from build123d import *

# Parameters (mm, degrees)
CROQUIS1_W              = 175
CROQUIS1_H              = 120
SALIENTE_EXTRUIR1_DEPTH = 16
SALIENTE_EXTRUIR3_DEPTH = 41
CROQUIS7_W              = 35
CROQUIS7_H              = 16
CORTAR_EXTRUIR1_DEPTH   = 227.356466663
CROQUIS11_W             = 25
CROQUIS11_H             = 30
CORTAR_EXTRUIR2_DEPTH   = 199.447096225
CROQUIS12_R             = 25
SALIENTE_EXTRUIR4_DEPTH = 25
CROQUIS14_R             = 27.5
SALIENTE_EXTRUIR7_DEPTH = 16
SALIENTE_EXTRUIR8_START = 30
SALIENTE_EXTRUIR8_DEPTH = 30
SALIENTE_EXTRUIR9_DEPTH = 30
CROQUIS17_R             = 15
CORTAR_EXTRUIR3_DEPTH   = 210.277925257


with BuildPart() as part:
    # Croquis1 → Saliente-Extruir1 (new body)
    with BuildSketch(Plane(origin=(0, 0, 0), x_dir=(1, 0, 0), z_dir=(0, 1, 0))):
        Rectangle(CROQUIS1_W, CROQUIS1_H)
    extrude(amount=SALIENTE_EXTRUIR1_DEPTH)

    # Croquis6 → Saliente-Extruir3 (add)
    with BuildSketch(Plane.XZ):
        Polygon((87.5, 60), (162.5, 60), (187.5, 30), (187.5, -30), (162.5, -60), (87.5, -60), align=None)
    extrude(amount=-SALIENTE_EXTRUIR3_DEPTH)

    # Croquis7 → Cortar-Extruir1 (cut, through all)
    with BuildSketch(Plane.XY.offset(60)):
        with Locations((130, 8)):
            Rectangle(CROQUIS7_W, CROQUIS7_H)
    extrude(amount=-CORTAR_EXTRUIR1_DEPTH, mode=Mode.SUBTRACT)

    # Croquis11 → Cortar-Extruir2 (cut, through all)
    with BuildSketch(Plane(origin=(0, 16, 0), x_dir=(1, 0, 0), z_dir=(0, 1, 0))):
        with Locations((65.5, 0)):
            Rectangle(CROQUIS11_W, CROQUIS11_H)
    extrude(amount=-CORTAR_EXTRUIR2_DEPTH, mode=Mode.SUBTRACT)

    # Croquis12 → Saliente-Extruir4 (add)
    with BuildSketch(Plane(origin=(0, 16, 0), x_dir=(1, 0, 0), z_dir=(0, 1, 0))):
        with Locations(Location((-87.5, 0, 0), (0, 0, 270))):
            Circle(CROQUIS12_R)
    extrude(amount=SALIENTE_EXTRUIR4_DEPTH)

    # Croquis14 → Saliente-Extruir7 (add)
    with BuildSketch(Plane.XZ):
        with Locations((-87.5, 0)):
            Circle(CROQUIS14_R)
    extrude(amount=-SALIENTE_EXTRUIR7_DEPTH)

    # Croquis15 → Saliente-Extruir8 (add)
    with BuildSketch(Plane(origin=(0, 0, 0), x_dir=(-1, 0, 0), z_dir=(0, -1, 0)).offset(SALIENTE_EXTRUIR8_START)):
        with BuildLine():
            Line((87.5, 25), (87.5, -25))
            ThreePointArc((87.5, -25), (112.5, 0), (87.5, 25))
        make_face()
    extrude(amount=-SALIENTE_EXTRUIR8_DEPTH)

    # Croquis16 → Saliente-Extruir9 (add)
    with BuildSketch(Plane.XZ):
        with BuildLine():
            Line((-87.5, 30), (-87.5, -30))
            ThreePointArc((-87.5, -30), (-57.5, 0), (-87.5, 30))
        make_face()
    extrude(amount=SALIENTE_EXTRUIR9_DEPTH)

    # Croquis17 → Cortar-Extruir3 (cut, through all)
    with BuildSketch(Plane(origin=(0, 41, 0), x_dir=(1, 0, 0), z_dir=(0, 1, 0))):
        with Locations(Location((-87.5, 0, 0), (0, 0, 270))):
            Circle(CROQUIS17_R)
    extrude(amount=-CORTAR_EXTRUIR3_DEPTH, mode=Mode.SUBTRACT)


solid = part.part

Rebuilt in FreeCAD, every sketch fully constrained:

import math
import FreeCAD as App
import Part
import Sketcher
Q = App.Units.Quantity

doc = App.newDocument("Part")
params = doc.addObject("Spreadsheet::Sheet", "Params")
for row, (alias, value) in enumerate([
    ("sketch1_width", "175 mm"),
    ("sketch1_height", "120 mm"),
    ("pad1_length", "16 mm"),
    ("sketch2_width", "75 mm"),
    ("sketch2_height", "120 mm"),
    ("sketch2_height2", "60 mm"),
    ("pad2_length", "41 mm"),
    ("sketch3_width", "35 mm"),
    ("sketch3_height", "16 mm"),
    ("sketch4_width", "25 mm"),
    ("sketch4_height", "30 mm"),
    ("sketch5_diameter", "50 mm"),
    ("pad3_length", "25 mm"),
    ("sketch6_diameter", "55 mm"),
    ("pad4_length", "16 mm"),
    ("sketch7_radius", "25 mm"),
    ("pad5_length", "30 mm"),
    ("sketch8_radius", "30 mm"),
    ("pad6_length", "30 mm"),
    ("sketch9_diameter", "30 mm"),
], start=1):
    params.set(f"A{row}", alias)
    params.set(f"B{row}", "=" + value)
    params.setAlias(f"B{row}", alias)

body = doc.addObject("PartDesign::Body", "Body")

# Sketch on XZ plane
sketch1 = body.newObject("Sketcher::SketchObject", "Sketch")
sketch1.AttachmentSupport = (doc.getObject("XZ_Plane"), [""])
sketch1.MapMode = "FlatFace"
sketch1.addGeometry([
    Part.LineSegment(App.Vector(-88, -60, 0), App.Vector(-88, 60, 0)),
    Part.LineSegment(App.Vector(-88, 60, 0), App.Vector(88, 60, 0)),
    Part.LineSegment(App.Vector(88, 60, 0), App.Vector(88, -60, 0)),
    Part.LineSegment(App.Vector(88, -60, 0), App.Vector(-88, -60, 0)),
], False)
sketch1.addConstraint([
    Sketcher.Constraint("Coincident", 0, 2, 1, 1),
    Sketcher.Constraint("Coincident", 1, 2, 2, 1),
    Sketcher.Constraint("Coincident", 2, 2, 3, 1),
    Sketcher.Constraint("Coincident", 3, 2, 0, 1),
    Sketcher.Constraint("Vertical", 0),
    Sketcher.Constraint("Horizontal", 1),
    Sketcher.Constraint("Vertical", 2),
    Sketcher.Constraint("Horizontal", 3),
    Sketcher.Constraint("Symmetric", 0, 2, 2, 2, -1, 1),
    Sketcher.Constraint("DistanceX", 1, 1, 1, 2, Q("175 mm")),
    Sketcher.Constraint("DistanceY", 0, 1, 0, 2, Q("120 mm")),
])
sketch1.setExpression("Constraints[9]", "Params.sketch1_width")
sketch1.setExpression("Constraints[10]", "Params.sketch1_height")
pad1 = body.newObject("PartDesign::Pad", "Pad")
pad1.Profile = sketch1
pad1.setExpression("Length", "Params.pad1_length")
pad1.Reversed = True

# Sketch on XZ plane
sketch2 = body.newObject("Sketcher::SketchObject", "Sketch001")
sketch2.AttachmentSupport = (doc.getObject("XZ_Plane"), [""])
sketch2.MapMode = "FlatFace"
sketch2.addGeometry([
    Part.LineSegment(App.Vector(162, 60, 0), App.Vector(88, 60, 0)),  # 0
    Part.LineSegment(App.Vector(88, 60, 0), App.Vector(88, -60, 0)),  # 1
    Part.LineSegment(App.Vector(88, -60, 0), App.Vector(162, -60, 0)),  # 2
    Part.LineSegment(App.Vector(162, -60, 0), App.Vector(188, -30, 0)),  # 3
    Part.LineSegment(App.Vector(188, -30, 0), App.Vector(188, 30, 0)),  # 4
    Part.LineSegment(App.Vector(188, 30, 0), App.Vector(162, 60, 0)),  # 5
], False)
sketch2.addConstraint([
    Sketcher.Constraint("Coincident", 0, 2, 1, 1),
    Sketcher.Constraint("Coincident", 1, 2, 2, 1),
    Sketcher.Constraint("Coincident", 2, 2, 3, 1),
    Sketcher.Constraint("Coincident", 3, 2, 4, 1),
    Sketcher.Constraint("Coincident", 4, 2, 5, 1),
    Sketcher.Constraint("Coincident", 5, 2, 0, 1),
    Sketcher.Constraint("Horizontal", 0),
    Sketcher.Constraint("Vertical", 1),
    Sketcher.Constraint("Horizontal", 2),
    Sketcher.Constraint("Vertical", 4),
    Sketcher.Constraint("Symmetric", 2, 2, 5, 2, -1),
    Sketcher.Constraint("Equal", 3, 5),
    Sketcher.Constraint("DistanceX", 0, 2, 0, 1, Q("75 mm")),
    Sketcher.Constraint("DistanceY", 1, 2, 1, 1, Q("120 mm")),
    Sketcher.Constraint("DistanceY", 4, 1, 4, 2, Q("60 mm")),
    Sketcher.Constraint("DistanceX", 2, 2, 3, 2, Q("25 mm")),
    Sketcher.Constraint("DistanceX", -1, 1, 0, 2, Q("87.5 mm")),
])
sketch2.setExpression("Constraints[12]", "Params.sketch2_width")
sketch2.setExpression("Constraints[13]", "Params.sketch2_height")
sketch2.setExpression("Constraints[14]", "Params.sketch2_height2")
pad2 = body.newObject("PartDesign::Pad", "Pad001")
pad2.Profile = sketch2
pad2.setExpression("Length", "Params.pad2_length")
pad2.Reversed = True

# Sketch on XY plane
sketch3 = body.newObject("Sketcher::SketchObject", "Sketch002")
sketch3.AttachmentSupport = (doc.getObject("XY_Plane"), [""])
sketch3.MapMode = "FlatFace"
sketch3.AttachmentOffset = App.Placement(App.Vector(0, 0, 60), App.Rotation())
sketch3.addGeometry([
    Part.LineSegment(App.Vector(112, 16, 0), App.Vector(112, 0, 0)),
    Part.LineSegment(App.Vector(112, 0, 0), App.Vector(148, 0, 0)),
    Part.LineSegment(App.Vector(148, 0, 0), App.Vector(148, 16, 0)),
    Part.LineSegment(App.Vector(148, 16, 0), App.Vector(112, 16, 0)),
], False)
sketch3.addConstraint([
    Sketcher.Constraint("Coincident", 0, 2, 1, 1),
    Sketcher.Constraint("Coincident", 1, 2, 2, 1),
    Sketcher.Constraint("Coincident", 2, 2, 3, 1),
    Sketcher.Constraint("Coincident", 3, 2, 0, 1),
    Sketcher.Constraint("Vertical", 0),
    Sketcher.Constraint("Horizontal", 1),
    Sketcher.Constraint("Vertical", 2),
    Sketcher.Constraint("Horizontal", 3),
    Sketcher.Constraint("PointOnObject", 0, 2, -1),
    Sketcher.Constraint("DistanceX", 1, 1, 1, 2, Q("35 mm")),
    Sketcher.Constraint("DistanceY", 0, 2, 0, 1, Q("16 mm")),
    Sketcher.Constraint("DistanceX", -1, 1, 0, 2, Q("112.5 mm")),
])
sketch3.setExpression("Constraints[9]", "Params.sketch3_width")
sketch3.setExpression("Constraints[10]", "Params.sketch3_height")
pocket1 = body.newObject("PartDesign::Pocket", "Pocket")
pocket1.Profile = sketch3
pocket1.Type = "ThroughAll"

# Sketch on XZ plane
sketch4 = body.newObject("Sketcher::SketchObject", "Sketch003")
sketch4.AttachmentSupport = (doc.getObject("XZ_Plane"), [""])
sketch4.MapMode = "FlatFace"
sketch4.AttachmentOffset = App.Placement(App.Vector(0, 0, -16), App.Rotation())
sketch4.addGeometry([
    Part.LineSegment(App.Vector(53, -15, 0), App.Vector(53, 15, 0)),
    Part.LineSegment(App.Vector(53, 15, 0), App.Vector(78, 15, 0)),
    Part.LineSegment(App.Vector(78, 15, 0), App.Vector(78, -15, 0)),
    Part.LineSegment(App.Vector(78, -15, 0), App.Vector(53, -15, 0)),
], False)
sketch4.addConstraint([
    Sketcher.Constraint("Coincident", 0, 2, 1, 1),
    Sketcher.Constraint("Coincident", 1, 2, 2, 1),
    Sketcher.Constraint("Coincident", 2, 2, 3, 1),
    Sketcher.Constraint("Coincident", 3, 2, 0, 1),
    Sketcher.Constraint("Vertical", 0),
    Sketcher.Constraint("Horizontal", 1),
    Sketcher.Constraint("Vertical", 2),
    Sketcher.Constraint("Horizontal", 3),
    Sketcher.Constraint("DistanceX", 1, 1, 1, 2, Q("25 mm")),
    Sketcher.Constraint("DistanceY", 0, 1, 0, 2, Q("30 mm")),
    Sketcher.Constraint("DistanceX", -1, 1, 0, 2, Q("53 mm")),
    Sketcher.Constraint("DistanceY", -1, 1, 0, 2, Q("15 mm")),
])
sketch4.setExpression("Constraints[8]", "Params.sketch4_width")
sketch4.setExpression("Constraints[9]", "Params.sketch4_height")
pocket2 = body.newObject("PartDesign::Pocket", "Pocket001")
pocket2.Profile = sketch4
pocket2.Type = "ThroughAll"
pocket2.Reversed = True

# Sketch on XZ plane
sketch5 = body.newObject("Sketcher::SketchObject", "Sketch004")
sketch5.AttachmentSupport = (doc.getObject("XZ_Plane"), [""])
sketch5.MapMode = "FlatFace"
sketch5.AttachmentOffset = App.Placement(App.Vector(0, 0, -16), App.Rotation())
sketch5.addGeometry(Part.Circle(App.Vector(-88, 0, 0), App.Vector(0, 0, 1), 25), False)
sketch5.addConstraint([
    Sketcher.Constraint("PointOnObject", 0, 3, -1),
    Sketcher.Constraint("Diameter", 0, Q("50 mm")),
    Sketcher.Constraint("DistanceX", 0, 3, -1, 1, Q("87.5 mm")),
])
sketch5.setExpression("Constraints[1]", "Params.sketch5_diameter")
pad3 = body.newObject("PartDesign::Pad", "Pad002")
pad3.Profile = sketch5
pad3.setExpression("Length", "Params.pad3_length")
pad3.Reversed = True

# Sketch on XZ plane
sketch6 = body.newObject("Sketcher::SketchObject", "Sketch005")
sketch6.AttachmentSupport = (doc.getObject("XZ_Plane"), [""])
sketch6.MapMode = "FlatFace"
sketch6.addGeometry(Part.Circle(App.Vector(-88, 0, 0), App.Vector(0, 0, 1), 28), False)
sketch6.addConstraint([
    Sketcher.Constraint("PointOnObject", 0, 3, -1),
    Sketcher.Constraint("Diameter", 0, Q("55 mm")),
    Sketcher.Constraint("DistanceX", 0, 3, -1, 1, Q("87.5 mm")),
])
sketch6.setExpression("Constraints[1]", "Params.sketch6_diameter")
pad4 = body.newObject("PartDesign::Pad", "Pad003")
pad4.Profile = sketch6
pad4.setExpression("Length", "Params.pad4_length")
pad4.Reversed = True

# Sketch on XZ plane
sketch7 = body.newObject("Sketcher::SketchObject", "Sketch006")
sketch7.AttachmentSupport = (doc.getObject("XZ_Plane"), [""])
sketch7.MapMode = "FlatFace"
sketch7.AttachmentOffset = App.Placement(App.Vector(0, 0, 30), App.Rotation())
sketch7.addGeometry([
    Part.LineSegment(App.Vector(-88, -25, 0), App.Vector(-88, 25, 0)),
    Part.ArcOfCircle(Part.Circle(App.Vector(-88, 0, 0), App.Vector(0, 0, 1), 25), math.radians(90), math.radians(270)),
], False)
sketch7.addConstraint([
    Sketcher.Constraint("Coincident", 0, 1, 1, 2),
    Sketcher.Constraint("Coincident", 1, 1, 0, 2),
    Sketcher.Constraint("Vertical", 0),
    Sketcher.Constraint("PointOnObject", 1, 3, -1),
    Sketcher.Constraint("Vertical", 1, 3, 0, 1),
    Sketcher.Constraint("Radius", 1, Q("25 mm")),
    Sketcher.Constraint("DistanceX", 1, 3, -1, 1, Q("87.5 mm")),
])
sketch7.setExpression("Constraints[5]", "Params.sketch7_radius")
pad5 = body.newObject("PartDesign::Pad", "Pad004")
pad5.Profile = sketch7
pad5.setExpression("Length", "Params.pad5_length")
pad5.Reversed = True

# Sketch on XZ plane
sketch8 = body.newObject("Sketcher::SketchObject", "Sketch007")
sketch8.AttachmentSupport = (doc.getObject("XZ_Plane"), [""])
sketch8.MapMode = "FlatFace"
sketch8.addGeometry([
    Part.LineSegment(App.Vector(-88, 30, 0), App.Vector(-88, -30, 0)),
    Part.ArcOfCircle(Part.Circle(App.Vector(-88, 0, 0), App.Vector(0, 0, 1), 30), math.radians(-90), math.radians(90)),
], False)
sketch8.addConstraint([
    Sketcher.Constraint("Coincident", 0, 1, 1, 2),
    Sketcher.Constraint("Coincident", 1, 1, 0, 2),
    Sketcher.Constraint("Vertical", 0),
    Sketcher.Constraint("PointOnObject", 1, 3, -1),
    Sketcher.Constraint("Vertical", 1, 3, 0, 1),
    Sketcher.Constraint("Radius", 1, Q("30 mm")),
    Sketcher.Constraint("DistanceX", 1, 3, -1, 1, Q("87.5 mm")),
])
sketch8.setExpression("Constraints[5]", "Params.sketch8_radius")
pad6 = body.newObject("PartDesign::Pad", "Pad005")
pad6.Profile = sketch8
pad6.setExpression("Length", "Params.pad6_length")

# Sketch on XZ plane
sketch9 = body.newObject("Sketcher::SketchObject", "Sketch008")
sketch9.AttachmentSupport = (doc.getObject("XZ_Plane"), [""])
sketch9.MapMode = "FlatFace"
sketch9.AttachmentOffset = App.Placement(App.Vector(0, 0, -41), App.Rotation())
sketch9.addGeometry(Part.Circle(App.Vector(-88, 0, 0), App.Vector(0, 0, 1), 15), False)
sketch9.addConstraint([
    Sketcher.Constraint("PointOnObject", 0, 3, -1),
    Sketcher.Constraint("Diameter", 0, Q("30 mm")),
    Sketcher.Constraint("DistanceX", 0, 3, -1, 1, Q("87.5 mm")),
])
sketch9.setExpression("Constraints[1]", "Params.sketch9_diameter")
pocket3 = body.newObject("PartDesign::Pocket", "Pocket002")
pocket3.Profile = sketch9
pocket3.Type = "ThroughAll"
pocket3.Reversed = True

doc.recompute()
